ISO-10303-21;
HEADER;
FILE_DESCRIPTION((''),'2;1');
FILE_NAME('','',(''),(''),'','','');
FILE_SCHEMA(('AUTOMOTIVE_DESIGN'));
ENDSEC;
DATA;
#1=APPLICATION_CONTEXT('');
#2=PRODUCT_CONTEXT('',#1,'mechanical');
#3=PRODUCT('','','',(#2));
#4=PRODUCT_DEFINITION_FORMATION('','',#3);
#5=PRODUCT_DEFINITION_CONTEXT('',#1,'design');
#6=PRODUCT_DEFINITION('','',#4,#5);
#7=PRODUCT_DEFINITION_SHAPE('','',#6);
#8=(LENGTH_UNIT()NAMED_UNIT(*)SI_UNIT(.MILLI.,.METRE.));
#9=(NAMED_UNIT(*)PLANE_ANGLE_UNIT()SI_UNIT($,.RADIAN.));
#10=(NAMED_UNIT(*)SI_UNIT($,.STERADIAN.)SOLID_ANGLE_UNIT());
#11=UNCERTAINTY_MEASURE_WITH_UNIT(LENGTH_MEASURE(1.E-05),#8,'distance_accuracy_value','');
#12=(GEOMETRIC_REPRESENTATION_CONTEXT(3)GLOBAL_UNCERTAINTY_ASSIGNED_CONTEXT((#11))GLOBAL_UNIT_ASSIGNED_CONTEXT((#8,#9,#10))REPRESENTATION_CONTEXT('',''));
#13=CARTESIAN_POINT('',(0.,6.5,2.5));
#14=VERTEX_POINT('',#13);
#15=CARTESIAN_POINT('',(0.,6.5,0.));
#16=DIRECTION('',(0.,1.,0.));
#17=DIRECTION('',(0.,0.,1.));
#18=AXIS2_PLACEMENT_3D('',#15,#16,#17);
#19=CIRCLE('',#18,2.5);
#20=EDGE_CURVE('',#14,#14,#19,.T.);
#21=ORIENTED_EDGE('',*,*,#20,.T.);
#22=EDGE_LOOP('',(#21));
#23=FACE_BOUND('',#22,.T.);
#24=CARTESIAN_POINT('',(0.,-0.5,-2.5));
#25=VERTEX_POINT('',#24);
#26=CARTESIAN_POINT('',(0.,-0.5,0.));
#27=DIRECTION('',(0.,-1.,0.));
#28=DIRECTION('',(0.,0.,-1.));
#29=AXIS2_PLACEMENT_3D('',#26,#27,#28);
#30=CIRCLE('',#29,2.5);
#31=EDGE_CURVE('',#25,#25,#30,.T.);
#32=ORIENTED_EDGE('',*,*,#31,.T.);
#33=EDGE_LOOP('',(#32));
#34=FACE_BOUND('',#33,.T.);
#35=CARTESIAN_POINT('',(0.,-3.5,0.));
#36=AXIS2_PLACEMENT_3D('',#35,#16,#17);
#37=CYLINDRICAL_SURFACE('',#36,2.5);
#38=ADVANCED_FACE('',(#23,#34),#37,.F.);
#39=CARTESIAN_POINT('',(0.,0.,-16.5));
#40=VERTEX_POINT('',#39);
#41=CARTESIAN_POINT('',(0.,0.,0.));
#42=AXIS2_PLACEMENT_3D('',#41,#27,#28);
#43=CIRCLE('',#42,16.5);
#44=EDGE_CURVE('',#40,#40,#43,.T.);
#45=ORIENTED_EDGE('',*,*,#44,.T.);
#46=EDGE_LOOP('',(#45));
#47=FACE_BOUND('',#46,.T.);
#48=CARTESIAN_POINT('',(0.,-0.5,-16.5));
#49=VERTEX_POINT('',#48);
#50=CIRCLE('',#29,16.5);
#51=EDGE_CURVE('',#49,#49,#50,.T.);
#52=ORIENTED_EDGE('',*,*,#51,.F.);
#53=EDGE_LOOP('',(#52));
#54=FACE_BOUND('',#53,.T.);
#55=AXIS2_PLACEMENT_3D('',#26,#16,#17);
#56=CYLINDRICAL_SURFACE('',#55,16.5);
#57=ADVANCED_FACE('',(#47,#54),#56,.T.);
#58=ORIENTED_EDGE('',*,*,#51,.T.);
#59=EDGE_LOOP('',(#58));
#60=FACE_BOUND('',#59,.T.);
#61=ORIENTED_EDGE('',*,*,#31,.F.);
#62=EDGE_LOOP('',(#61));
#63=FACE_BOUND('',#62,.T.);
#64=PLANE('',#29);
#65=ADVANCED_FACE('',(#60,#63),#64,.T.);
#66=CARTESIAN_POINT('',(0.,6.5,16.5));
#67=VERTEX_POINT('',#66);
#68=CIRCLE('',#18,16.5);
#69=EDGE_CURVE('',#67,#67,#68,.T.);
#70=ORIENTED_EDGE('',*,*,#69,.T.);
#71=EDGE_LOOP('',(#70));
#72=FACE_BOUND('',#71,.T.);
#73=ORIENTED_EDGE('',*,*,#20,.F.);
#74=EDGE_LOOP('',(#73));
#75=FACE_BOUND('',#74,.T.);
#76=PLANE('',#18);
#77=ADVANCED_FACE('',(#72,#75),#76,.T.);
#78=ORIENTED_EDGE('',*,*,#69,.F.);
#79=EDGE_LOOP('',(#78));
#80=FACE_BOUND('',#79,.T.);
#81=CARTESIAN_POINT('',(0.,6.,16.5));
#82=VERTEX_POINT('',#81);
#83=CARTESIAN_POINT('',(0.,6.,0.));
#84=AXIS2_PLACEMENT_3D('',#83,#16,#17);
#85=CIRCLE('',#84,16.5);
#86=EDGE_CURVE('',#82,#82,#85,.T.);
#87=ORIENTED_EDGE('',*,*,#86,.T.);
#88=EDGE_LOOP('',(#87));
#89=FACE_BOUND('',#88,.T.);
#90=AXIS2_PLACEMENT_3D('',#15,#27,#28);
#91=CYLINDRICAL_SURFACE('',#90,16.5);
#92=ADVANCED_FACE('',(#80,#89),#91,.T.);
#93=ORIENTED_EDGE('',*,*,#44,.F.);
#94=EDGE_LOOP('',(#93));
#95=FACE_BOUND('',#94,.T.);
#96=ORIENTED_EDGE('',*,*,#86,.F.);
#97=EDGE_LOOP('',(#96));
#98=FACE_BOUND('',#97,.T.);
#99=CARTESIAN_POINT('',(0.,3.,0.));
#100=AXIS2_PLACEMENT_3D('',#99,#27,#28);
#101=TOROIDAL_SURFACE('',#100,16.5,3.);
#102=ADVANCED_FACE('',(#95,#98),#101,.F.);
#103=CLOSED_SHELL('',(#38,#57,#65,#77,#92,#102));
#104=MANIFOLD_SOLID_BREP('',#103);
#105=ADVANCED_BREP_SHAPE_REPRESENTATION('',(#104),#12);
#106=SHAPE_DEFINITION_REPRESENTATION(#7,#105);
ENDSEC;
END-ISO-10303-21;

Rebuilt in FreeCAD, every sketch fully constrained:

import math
import FreeCAD as App
import Part
import Sketcher

V = App.Vector
Q = App.Units.Quantity

doc = App.newDocument("Part")
body = doc.addObject("PartDesign::Body", "Body")

sketch1 = body.newObject("Sketcher::SketchObject", "Sketch")
sketch1.AttachmentSupport = (doc.getObject("XY_Plane"), [""])
sketch1.MapMode = "FlatFace"
sketch1.addGeometry([
    Part.LineSegment(V(0, 6, 0), V(0, 0, 0)),
    Part.LineSegment(V(0, 0, 0), V(16.5, 0, 0)),
    Part.ArcOfCircle(Part.Circle(V(16.5, 3, 0), V(0, 0, 1), 3), math.radians(180), math.radians(270)),
    Part.ArcOfCircle(Part.Circle(V(16.5, 3, 0), V(0, 0, 1), 3), math.radians(90), math.radians(180)),
    Part.LineSegment(V(16.5, 6, 0), V(0, 6, 0)),
], False)
sketch1.addConstraint([
    Sketcher.Constraint("Coincident", 0, 2, 1, 1),
    Sketcher.Constraint("Tangent", 1, 2, 2, 2),
    Sketcher.Constraint("Tangent", 2, 1, 3, 2),
    Sketcher.Constraint("Tangent", 3, 1, 4, 1),
    Sketcher.Constraint("Coincident", 4, 2, 0, 1),
    Sketcher.Constraint("Vertical", 0),
    Sketcher.Constraint("Horizontal", 1),
    Sketcher.Constraint("Horizontal", 4),
    Sketcher.Constraint("Coincident", 0, 2, -1, 1),
    Sketcher.Constraint("Equal", 2, 3),
    Sketcher.Constraint("Horizontal", 3, 3, 2, 1),
    Sketcher.Constraint("Radius", 2, Q("3 mm")),
    Sketcher.Constraint("DistanceX", 1, 1, 1, 2, Q("16.5 mm")),
])
revolution = body.newObject("PartDesign::Revolution", "Revolution")
revolution.Profile = sketch1
revolution.ReferenceAxis = (sketch1, ["V_Axis"])
revolution.Angle = 360

sketch2 = body.newObject("Sketcher::SketchObject", "Sketch001")
sketch2.AttachmentSupport = (doc.getObject("XZ_Plane"), [""])
sketch2.MapMode = "FlatFace"
sketch2.AttachmentOffset = App.Placement(V(0, 0, -6), App.Rotation())
sketch2.addGeometry(Part.Circle(V(0, 0, 0), V(0, 0, 1), 16), False)
sketch2.addConstraint([
    Sketcher.Constraint("Coincident", 0, 3, -1, 1),
    Sketcher.Constraint("Diameter", 0, Q("33 mm")),
])
pad1 = body.newObject("PartDesign::Pad", "Pad")
pad1.Profile = sketch2
pad1.Length = 0.5
pad1.Reversed = True

sketch3 = body.newObject("Sketcher::SketchObject", "Sketch002")
sketch3.AttachmentSupport = (doc.getObject("XZ_Plane"), [""])
sketch3.MapMode = "FlatFace"
sketch3.AttachmentOffset = App.Placement(V(0, 0, 0.5), App.Rotation())
sketch3.addGeometry(Part.Circle(V(0, 0, 0), V(0, 0, 1), 16), False)
sketch3.addConstraint([
    Sketcher.Constraint("Coincident", 0, 3, -1, 1),
    Sketcher.Constraint("Diameter", 0, Q("33 mm")),
])
pad2 = body.newObject("PartDesign::Pad", "Pad001")
pad2.Profile = sketch3
pad2.Length = 0.5
pad2.Reversed = True

sketch4 = body.newObject("Sketcher::SketchObject", "Sketch003")
sketch4.AttachmentSupport = (doc.getObject("XZ_Plane"), [""])
sketch4.MapMode = "FlatFace"
sketch4.AttachmentOffset = App.Placement(V(0, 0, 0.5), App.Rotation())
sketch4.addGeometry(Part.Circle(V(0, 0, 0), V(0, 0, 1), 1), False)
sketch4.addConstraint([
    Sketcher.Constraint("Coincident", 0, 3, -1, 1),
    Sketcher.Constraint("Diameter", 0, Q("2 mm")),
])
pocket1 = body.newObject("PartDesign::Pocket", "Pocket")
pocket1.Profile = sketch4
pocket1.Length = 7

sketch5 = body.newObject("Sketcher::SketchObject", "Sketch004")
sketch5.AttachmentSupport = (doc.getObject("XZ_Plane"), [""])
sketch5.MapMode = "FlatFace"
sketch5.AttachmentOffset = App.Placement(V(0, 0, -6.5), App.Rotation())
sketch5.addGeometry(Part.Circle(V(0, 0, 0), V(0, 0, 1), 2.5), False)
sketch5.addConstraint([
    Sketcher.Constraint("Coincident", 0, 3, -1, 1),
    Sketcher.Constraint("Diameter", 0, Q("5 mm")),
])
pocket2 = body.newObject("PartDesign::Pocket", "Pocket001")
pocket2.Profile = sketch5
pocket2.Length = 10
pocket2.Reversed = True

doc.recompute()
